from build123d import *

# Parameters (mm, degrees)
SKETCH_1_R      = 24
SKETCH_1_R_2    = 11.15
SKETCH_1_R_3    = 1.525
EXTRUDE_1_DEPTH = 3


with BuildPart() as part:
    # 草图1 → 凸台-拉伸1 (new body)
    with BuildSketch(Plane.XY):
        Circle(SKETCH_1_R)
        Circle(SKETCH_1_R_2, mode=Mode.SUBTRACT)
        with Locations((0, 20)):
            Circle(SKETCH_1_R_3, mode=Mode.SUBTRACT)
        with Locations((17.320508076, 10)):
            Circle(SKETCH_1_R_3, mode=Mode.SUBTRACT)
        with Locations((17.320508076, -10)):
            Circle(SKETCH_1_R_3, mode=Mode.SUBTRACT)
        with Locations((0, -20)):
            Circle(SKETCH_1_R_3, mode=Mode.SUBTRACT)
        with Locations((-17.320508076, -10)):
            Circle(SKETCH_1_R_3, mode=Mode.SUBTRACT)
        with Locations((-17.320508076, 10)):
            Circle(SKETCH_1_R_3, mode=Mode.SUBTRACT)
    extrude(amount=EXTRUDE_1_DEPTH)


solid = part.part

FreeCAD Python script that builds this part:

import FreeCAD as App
import Part
import Sketcher
from FreeCAD import Vector
Q = App.Units.Quantity

doc = App.newDocument("Part")
params = doc.addObject("Spreadsheet::Sheet", "Params")
for row, (alias, value) in enumerate([
    ("sketch1_diameter", "48 mm"),
    ("sketch1_diameter2", "22.3 mm"),
    ("sketch1_diameter3", "3.05 mm"),
    ("pad1_length", "3 mm"),
], start=1):
    params.set(f"A{row}", alias)
    params.set(f"B{row}", "=" + value)
    params.setAlias(f"B{row}", alias)

body = doc.addObject("PartDesign::Body", "Body")

# Sketch on XY plane
sketch1 = body.newObject("Sketcher::SketchObject", "Sketch")
sketch1.AttachmentSupport = (doc.getObject("XY_Plane"), [""])
sketch1.MapMode = "FlatFace"
sketch1.addGeometry(Part.Circle(Vector(0, 0, 0), Vector(0, 0, 1), 24), False)
sketch1.addGeometry(Part.Circle(Vector(-17.3, -10, 0), Vector(0, 0, 1), 1.5), False)
sketch1.addGeometry(Part.Circle(Vector(0, -20, 0), Vector(0, 0, 1), 1.5), False)
sketch1.addGeometry(Part.Circle(Vector(0, 0, 0), Vector(0, 0, 1), 11.2), False)
sketch1.addGeometry(Part.Circle(Vector(17.3, -10, 0), Vector(0, 0, 1), 1.5), False)
sketch1.addGeometry(Part.Circle(Vector(-17.3, 10, 0), Vector(0, 0, 1), 1.5), False)
sketch1.addGeometry(Part.Circle(Vector(17.3, 10, 0), Vector(0, 0, 1), 1.5), False)
sketch1.addGeometry(Part.Circle(Vector(0, 20, 0), Vector(0, 0, 1), 1.5), False)
sketch1.addConstraint(Sketcher.Constraint("Coincident", 0, 3, -1, 1))
sketch1.addConstraint(Sketcher.Constraint("Coincident", 3, 3, -1, 1))
sketch1.addConstraint(Sketcher.Constraint("Equal", 1, 2))
sketch1.addConstraint(Sketcher.Constraint("Equal", 2, 4))
sketch1.addConstraint(Sketcher.Constraint("Equal", 4, 5))
sketch1.addConstraint(Sketcher.Constraint("Equal", 5, 6))
sketch1.addConstraint(Sketcher.Constraint("Equal", 6, 7))
sketch1.addConstraint(Sketcher.Constraint("Symmetric", 4, 3, 5, 3, -1, 1))
sketch1.addConstraint(Sketcher.Constraint("Symmetric", 1, 3, 6, 3, -1, 1))
sketch1.addConstraint(Sketcher.Constraint("Symmetric", 2, 3, 7, 3, -1, 1))
sketch1.addConstraint(Sketcher.Constraint("Symmetric", 1, 3, 4, 3, -2))
sketch1.addConstraint(Sketcher.Constraint("PointOnObject", 2, 3, -2))
sketch1.addConstraint(Sketcher.Constraint("Diameter", 0, Q("48 mm")))
sketch1.addConstraint(Sketcher.Constraint("Diameter", 3, Q("22.3 mm")))
sketch1.addConstraint(Sketcher.Constraint("Diameter", 1, Q("3.05 mm")))
sketch1.addConstraint(Sketcher.Constraint("DistanceY", 1, 3, -1, 1, Q("10 mm")))
sketch1.addConstraint(Sketcher.Constraint("DistanceY", 2, 3, -1, 1, Q("20 mm")))
sketch1.addConstraint(Sketcher.Constraint("DistanceX", 1, 3, -1, 1, Q("17.320508 mm")))
sketch1.setExpression("Constraints[12]", "Params.sketch1_diameter")
sketch1.setExpression("Constraints[13]", "Params.sketch1_diameter2")
sketch1.setExpression("Constraints[14]", "Params.sketch1_diameter3")
pad1 = body.newObject("PartDesign::Pad", "Pad")
pad1.Profile = sketch1
pad1.setExpression("Length", "Params.pad1_length")

doc.recompute()
